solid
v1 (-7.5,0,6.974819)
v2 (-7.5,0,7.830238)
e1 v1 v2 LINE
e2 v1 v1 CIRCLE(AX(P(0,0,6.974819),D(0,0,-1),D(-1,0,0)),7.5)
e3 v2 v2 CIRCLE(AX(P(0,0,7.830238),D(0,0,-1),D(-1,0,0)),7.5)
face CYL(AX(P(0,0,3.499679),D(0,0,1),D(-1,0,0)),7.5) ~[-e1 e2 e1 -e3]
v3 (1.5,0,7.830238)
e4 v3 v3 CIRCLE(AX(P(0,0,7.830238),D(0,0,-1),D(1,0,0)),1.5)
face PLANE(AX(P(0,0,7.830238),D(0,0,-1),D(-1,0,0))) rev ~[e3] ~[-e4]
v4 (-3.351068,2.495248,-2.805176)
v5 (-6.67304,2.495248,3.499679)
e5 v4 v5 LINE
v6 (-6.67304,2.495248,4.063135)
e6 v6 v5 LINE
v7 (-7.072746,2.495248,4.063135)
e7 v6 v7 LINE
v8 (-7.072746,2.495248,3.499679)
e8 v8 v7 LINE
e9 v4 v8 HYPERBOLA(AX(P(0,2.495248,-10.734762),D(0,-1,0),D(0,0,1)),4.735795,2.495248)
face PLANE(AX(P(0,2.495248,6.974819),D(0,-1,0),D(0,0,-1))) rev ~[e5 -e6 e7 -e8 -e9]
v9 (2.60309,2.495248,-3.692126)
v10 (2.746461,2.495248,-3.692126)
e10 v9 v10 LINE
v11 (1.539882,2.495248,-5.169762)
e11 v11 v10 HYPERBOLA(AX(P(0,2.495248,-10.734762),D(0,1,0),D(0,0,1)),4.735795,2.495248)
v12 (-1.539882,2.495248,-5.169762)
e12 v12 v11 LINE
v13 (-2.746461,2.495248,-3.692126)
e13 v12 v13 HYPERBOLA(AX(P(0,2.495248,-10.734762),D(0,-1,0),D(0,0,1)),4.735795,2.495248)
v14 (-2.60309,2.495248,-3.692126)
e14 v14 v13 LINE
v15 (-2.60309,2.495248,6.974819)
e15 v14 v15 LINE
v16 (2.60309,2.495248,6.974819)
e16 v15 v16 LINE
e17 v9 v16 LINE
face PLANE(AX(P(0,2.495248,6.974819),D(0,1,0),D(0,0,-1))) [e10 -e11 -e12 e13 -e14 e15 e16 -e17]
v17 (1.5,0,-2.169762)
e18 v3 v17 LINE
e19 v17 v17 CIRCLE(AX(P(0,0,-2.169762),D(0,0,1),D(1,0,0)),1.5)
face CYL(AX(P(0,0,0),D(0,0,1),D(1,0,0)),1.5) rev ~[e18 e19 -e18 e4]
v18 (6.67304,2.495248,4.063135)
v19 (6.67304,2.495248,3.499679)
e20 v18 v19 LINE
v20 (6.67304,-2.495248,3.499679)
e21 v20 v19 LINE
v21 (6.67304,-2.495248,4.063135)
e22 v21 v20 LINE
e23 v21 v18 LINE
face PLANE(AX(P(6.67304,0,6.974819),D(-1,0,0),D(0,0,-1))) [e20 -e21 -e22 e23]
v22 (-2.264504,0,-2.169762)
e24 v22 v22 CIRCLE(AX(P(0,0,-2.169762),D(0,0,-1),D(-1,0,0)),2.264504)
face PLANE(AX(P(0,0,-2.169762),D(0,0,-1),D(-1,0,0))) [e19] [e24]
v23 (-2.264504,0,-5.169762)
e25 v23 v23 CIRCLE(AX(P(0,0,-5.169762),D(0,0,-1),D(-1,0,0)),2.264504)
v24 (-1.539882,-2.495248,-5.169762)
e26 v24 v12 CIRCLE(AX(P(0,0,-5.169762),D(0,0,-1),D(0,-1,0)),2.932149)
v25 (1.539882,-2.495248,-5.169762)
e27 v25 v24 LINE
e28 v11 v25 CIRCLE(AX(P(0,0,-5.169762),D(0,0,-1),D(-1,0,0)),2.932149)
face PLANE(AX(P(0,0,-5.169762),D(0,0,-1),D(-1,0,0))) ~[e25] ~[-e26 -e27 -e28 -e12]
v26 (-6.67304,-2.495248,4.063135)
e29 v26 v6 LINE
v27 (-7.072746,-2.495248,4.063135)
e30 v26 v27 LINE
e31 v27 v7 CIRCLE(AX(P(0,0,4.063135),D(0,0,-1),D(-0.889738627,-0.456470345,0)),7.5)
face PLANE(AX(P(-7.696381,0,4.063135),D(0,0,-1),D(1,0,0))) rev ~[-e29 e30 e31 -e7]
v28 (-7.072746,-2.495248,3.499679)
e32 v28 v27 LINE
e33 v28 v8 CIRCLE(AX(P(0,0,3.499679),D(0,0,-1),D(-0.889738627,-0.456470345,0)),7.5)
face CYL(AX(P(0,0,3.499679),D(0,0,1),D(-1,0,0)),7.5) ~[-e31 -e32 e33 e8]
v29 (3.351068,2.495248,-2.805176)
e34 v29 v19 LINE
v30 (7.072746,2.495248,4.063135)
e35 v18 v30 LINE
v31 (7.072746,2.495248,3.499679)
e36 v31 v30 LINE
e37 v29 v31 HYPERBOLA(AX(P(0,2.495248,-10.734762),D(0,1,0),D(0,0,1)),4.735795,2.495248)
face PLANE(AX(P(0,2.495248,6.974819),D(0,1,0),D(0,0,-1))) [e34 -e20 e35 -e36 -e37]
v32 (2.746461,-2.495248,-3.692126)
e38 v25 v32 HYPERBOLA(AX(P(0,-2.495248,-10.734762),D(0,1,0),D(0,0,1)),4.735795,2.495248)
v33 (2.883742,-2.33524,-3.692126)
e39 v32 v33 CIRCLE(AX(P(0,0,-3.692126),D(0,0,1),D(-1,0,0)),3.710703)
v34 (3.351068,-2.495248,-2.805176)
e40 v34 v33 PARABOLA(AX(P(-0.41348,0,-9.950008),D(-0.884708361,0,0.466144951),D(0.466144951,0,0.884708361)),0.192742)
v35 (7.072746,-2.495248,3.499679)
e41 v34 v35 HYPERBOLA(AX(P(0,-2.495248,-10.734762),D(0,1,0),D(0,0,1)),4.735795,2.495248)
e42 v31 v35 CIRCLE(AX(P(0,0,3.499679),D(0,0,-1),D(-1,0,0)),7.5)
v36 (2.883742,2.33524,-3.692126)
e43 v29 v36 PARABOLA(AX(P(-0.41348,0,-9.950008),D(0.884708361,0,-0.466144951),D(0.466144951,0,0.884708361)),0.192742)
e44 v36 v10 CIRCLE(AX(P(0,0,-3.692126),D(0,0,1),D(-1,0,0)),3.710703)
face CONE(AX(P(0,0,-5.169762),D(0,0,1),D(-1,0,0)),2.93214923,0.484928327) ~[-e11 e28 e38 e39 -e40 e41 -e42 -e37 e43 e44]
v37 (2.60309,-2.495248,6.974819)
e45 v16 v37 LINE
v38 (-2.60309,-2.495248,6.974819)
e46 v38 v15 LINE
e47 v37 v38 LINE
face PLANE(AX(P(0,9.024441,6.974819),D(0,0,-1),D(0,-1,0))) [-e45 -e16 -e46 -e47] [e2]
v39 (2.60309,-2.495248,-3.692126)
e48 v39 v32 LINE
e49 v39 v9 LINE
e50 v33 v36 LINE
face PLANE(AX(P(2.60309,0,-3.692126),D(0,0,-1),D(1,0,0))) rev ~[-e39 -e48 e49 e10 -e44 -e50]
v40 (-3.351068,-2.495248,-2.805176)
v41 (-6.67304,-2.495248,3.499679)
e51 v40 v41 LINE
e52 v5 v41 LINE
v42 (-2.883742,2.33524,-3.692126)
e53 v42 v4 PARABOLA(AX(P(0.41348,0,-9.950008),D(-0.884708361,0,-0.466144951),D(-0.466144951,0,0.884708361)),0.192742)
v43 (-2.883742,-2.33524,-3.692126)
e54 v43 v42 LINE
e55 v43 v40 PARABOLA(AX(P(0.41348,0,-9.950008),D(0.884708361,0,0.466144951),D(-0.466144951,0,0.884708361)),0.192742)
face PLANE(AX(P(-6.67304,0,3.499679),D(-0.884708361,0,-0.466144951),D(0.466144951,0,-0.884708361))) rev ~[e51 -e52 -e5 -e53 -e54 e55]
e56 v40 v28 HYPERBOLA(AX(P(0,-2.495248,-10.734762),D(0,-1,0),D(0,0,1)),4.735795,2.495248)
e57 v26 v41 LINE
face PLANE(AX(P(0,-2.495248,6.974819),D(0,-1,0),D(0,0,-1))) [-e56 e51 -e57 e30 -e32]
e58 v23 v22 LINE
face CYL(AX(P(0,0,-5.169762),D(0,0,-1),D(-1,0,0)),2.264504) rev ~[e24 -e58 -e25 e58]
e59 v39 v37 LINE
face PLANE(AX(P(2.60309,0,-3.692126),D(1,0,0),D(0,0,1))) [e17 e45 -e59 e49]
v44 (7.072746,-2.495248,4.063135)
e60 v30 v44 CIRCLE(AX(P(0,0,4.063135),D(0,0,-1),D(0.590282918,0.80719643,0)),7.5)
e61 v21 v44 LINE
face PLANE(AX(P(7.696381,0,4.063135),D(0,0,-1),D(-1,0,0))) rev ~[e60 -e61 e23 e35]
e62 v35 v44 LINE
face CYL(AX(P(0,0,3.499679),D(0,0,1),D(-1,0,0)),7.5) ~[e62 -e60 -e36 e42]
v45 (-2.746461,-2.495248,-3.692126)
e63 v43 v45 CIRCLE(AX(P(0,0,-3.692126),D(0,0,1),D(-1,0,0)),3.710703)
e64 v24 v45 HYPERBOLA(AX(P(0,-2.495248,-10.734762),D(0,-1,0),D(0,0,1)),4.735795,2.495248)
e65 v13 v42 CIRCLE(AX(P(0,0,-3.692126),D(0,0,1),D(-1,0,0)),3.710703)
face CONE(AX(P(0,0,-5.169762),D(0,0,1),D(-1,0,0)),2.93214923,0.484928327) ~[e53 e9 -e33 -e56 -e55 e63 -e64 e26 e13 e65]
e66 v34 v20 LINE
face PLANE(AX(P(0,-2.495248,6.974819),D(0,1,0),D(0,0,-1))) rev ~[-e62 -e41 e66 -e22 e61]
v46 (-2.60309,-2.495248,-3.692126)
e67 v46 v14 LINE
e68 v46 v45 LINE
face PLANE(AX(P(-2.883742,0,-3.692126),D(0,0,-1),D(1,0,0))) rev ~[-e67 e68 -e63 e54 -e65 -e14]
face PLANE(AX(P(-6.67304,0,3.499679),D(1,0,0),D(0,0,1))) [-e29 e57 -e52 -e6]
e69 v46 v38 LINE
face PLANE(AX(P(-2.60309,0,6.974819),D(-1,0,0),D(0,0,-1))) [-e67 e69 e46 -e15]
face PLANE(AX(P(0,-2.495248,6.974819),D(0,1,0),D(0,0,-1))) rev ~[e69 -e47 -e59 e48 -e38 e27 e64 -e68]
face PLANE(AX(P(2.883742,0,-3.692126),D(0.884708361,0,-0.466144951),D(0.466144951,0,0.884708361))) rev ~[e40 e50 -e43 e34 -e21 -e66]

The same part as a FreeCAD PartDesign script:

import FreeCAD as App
import Part
import Sketcher
from FreeCAD import Vector


def add_polygon(sketch, points):
    """Adds a closed chain of lines whose ends are joined by coincident constraints."""
    first, n = sketch.GeometryCount, len(points)
    for a, b in zip(points, points[1:] + points[:1]):
        sketch.addGeometry(Part.LineSegment(App.Vector(*a, 0), App.Vector(*b, 0)), False)
    for i in range(n):
        sketch.addConstraint(Sketcher.Constraint("Coincident", first + i, 2, first + (i + 1) % n, 1))

doc = App.newDocument("Part")
body = doc.addObject("PartDesign::Body", "Body")

# Sketch on XZ plane
sketch1 = body.newObject("Sketcher::SketchObject", "Sketch")
sketch1.AttachmentSupport = (doc.getObject("XZ_Plane"), [""])
sketch1.MapMode = "FlatFace"
add_polygon(sketch1, [(0, -5.2), (-2.9, -5.2), (-7.5, 3.5), (-7.5, 7.8), (0, 7.8)])  # lines 0-4
sketch1.addConstraint([
    Sketcher.Constraint("Horizontal", 0),
    Sketcher.Constraint("Vertical", 2),
    Sketcher.Constraint("Horizontal", 3),
    Sketcher.Constraint("Vertical", 4),
    Sketcher.Constraint("PointOnObject", 3, 2, -2),
    Sketcher.Constraint("DistanceY", 4, 2, 4, 1, 13.0),
    Sketcher.Constraint("DistanceX", 3, 1, 3, 2, 7.5),
    Sketcher.Constraint("DistanceX", 0, 2, 0, 1, 2.932149),
    Sketcher.Constraint("DistanceY", 2, 1, 2, 2, 4.33056),
    Sketcher.Constraint("DistanceY", 0, 2, -1, 1, 5.169762),
])
revolution = body.newObject("PartDesign::Revolution", "Revolution")
revolution.Profile = sketch1
revolution.ReferenceAxis = (sketch1, ["V_Axis"])
revolution.Angle = 360

# Sketch on XZ plane
sketch2 = body.newObject("Sketcher::SketchObject", "Sketch001")
sketch2.AttachmentSupport = (doc.getObject("XZ_Plane"), [""])
sketch2.MapMode = "FlatFace"
add_polygon(sketch2, [(-4.4, 4.1), (-7.7, 4.1), (-8.4, 7), (-4.4, 7)])  # lines 0-3
add_polygon(sketch2, [(8.4, 7), (7.7, 4.1), (4.4, 4.1), (4.4, 7)])  # lines 4-7
sketch2.addConstraint([
    Sketcher.Constraint("Horizontal", 0),
    Sketcher.Constraint("Horizontal", 2),
    Sketcher.Constraint("Vertical", 3),
    Sketcher.Constraint("Horizontal", 5),
    Sketcher.Constraint("Vertical", 6),
    Sketcher.Constraint("Horizontal", 7),
    Sketcher.Constraint("Symmetric", 0, 2, 4, 2, -2),
    Sketcher.Constraint("Symmetric", 2, 2, 6, 2, -2),
    Sketcher.Constraint("Equal", 2, 7),
    Sketcher.Constraint("DistanceX", 0, 2, 0, 1, 3.269259),
    Sketcher.Constraint("Distance", 1, 3.006528),
    Sketcher.Constraint("DistanceX", 2, 1, 2, 2, 4.018464),
    Sketcher.Constraint("DistanceX", 0, 2, -1, 1, 7.696381),
    Sketcher.Constraint("DistanceY", -1, 1, 1, 2, 6.974819),
])
pocket1 = body.newObject("PartDesign::Pocket", "Pocket")
pocket1.Profile = sketch2
pocket1.Type = "ThroughAll"
pocket1.Midplane = True

# Sketch on XZ plane
sketch3 = body.newObject("Sketcher::SketchObject", "Sketch002")
sketch3.AttachmentSupport = (doc.getObject("XZ_Plane"), [""])
sketch3.MapMode = "FlatFace"
add_polygon(sketch3, [(-6.67, 3.5), (-6.67, 6.97), (-2.6, 6.97), (-2.6, -3.69), (-2.88, -3.69)])  # lines 0-4
add_polygon(sketch3, [(2.6, -3.69), (2.6, 6.97), (6.67, 6.97), (6.67, 3.5), (2.88, -3.69)])  # lines 5-9
sketch3.addConstraint([
    Sketcher.Constraint("Vertical", 0),
    Sketcher.Constraint("Horizontal", 1),
    Sketcher.Constraint("Vertical", 2),
    Sketcher.Constraint("Horizontal", 3),
    Sketcher.Constraint("Vertical", 5),
    Sketcher.Constraint("Horizontal", 6),
    Sketcher.Constraint("Vertical", 7),
    Sketcher.Constraint("Horizontal", 9),
    Sketcher.Constraint("Symmetric", 1, 2, 5, 2, -2),
    Sketcher.Constraint("Symmetric", 4, 2, 7, 2, -2),
    Sketcher.Constraint("Symmetric", 3, 2, 8, 2, -2),
    Sketcher.Constraint("DistanceX", 1, 1, 1, 2, 4.06995),
    Sketcher.Constraint("DistanceY", 0, 1, 0, 2, 3.47514),
    Sketcher.Constraint("Distance", 4, 8.129011),
    Sketcher.Constraint("DistanceX", 3, 2, 3, 1, 0.280653),
    Sketcher.Constraint("DistanceX", 0, 2, -1, 1, 6.67304),
    Sketcher.Constraint("DistanceY", -1, 1, 0, 2, 6.974819),
])
pocket2 = body.newObject("PartDesign::Pocket", "Pocket001")
pocket2.Profile = sketch3
pocket2.Type = "ThroughAll"
pocket2.Midplane = True

# Sketch on YZ plane
sketch4 = body.newObject("Sketcher::SketchObject", "Sketch003")
sketch4.AttachmentSupport = (doc.getObject("YZ_Plane"), [""])
sketch4.MapMode = "FlatFace"
add_polygon(sketch4, [(2.5, 7), (2.5, -8.8), (9, 4.2), (9, 7)])  # lines 0-3
add_polygon(sketch4, [(-2.5, 7), (-9, 7), (-9, 4.2), (-2.5, -8.8)])  # lines 4-7
sketch4.addConstraint([
    Sketcher.Constraint("Vertical", 0),
    Sketcher.Constraint("Vertical", 2),
    Sketcher.Constraint("Horizontal", 3),
    Sketcher.Constraint("Horizontal", 4),
    Sketcher.Constraint("Vertical", 5),
    Sketcher.Constraint("Vertical", 7),
    Sketcher.Constraint("Symmetric", 2, 2, 4, 2, -2),
    Sketcher.Constraint("Symmetric", 0, 2, 6, 2, -2),
    Sketcher.Constraint("Horizontal", 1, 2, 5, 2),
    Sketcher.Constraint("DistanceY", 0, 2, 0, 1, 15.72779),
    Sketcher.Constraint("Distance", 1, 14.530032),
    Sketcher.Constraint("DistanceX", 3, 2, 3, 1, 6.529193),
    Sketcher.Constraint("DistanceX", -1, 1, 0, 2, 2.495248),
    Sketcher.Constraint("DistanceY", 0, 2, -1, 1, 8.752971),
])
pocket3 = body.newObject("PartDesign::Pocket", "Pocket002")
pocket3.Profile = sketch4
pocket3.Type = "ThroughAll"
pocket3.Midplane = True

# Sketch on XY plane
sketch5 = body.newObject("Sketcher::SketchObject", "Sketch004")
sketch5.AttachmentSupport = (doc.getObject("XY_Plane"), [""])
sketch5.MapMode = "FlatFace"
sketch5.addGeometry(Part.Circle(Vector(0, 0, 0), Vector(0, 0, 1), 1.5), False)
sketch5.addConstraint([
    Sketcher.Constraint("Coincident", 0, 3, -1, 1),
    Sketcher.Constraint("Diameter", 0, 3.0),
])
pocket4 = body.newObject("PartDesign::Pocket", "Pocket003")
pocket4.Profile = sketch5
pocket4.Type = "ThroughAll"
pocket4.Midplane = True

# Sketch on XY plane
sketch6 = body.newObject("Sketcher::SketchObject", "Sketch005")
sketch6.AttachmentSupport = (doc.getObject("XY_Plane"), [""])
sketch6.MapMode = "FlatFace"
sketch6.AttachmentOffset = App.Placement(Vector(0, 0, -5.169762), App.Rotation())
sketch6.addGeometry(Part.Circle(Vector(0, 0, 0), Vector(0, 0, 1), 2.3), False)
sketch6.addConstraint([
    Sketcher.Constraint("Coincident", 0, 3, -1, 1),
    Sketcher.Constraint("Diameter", 0, 4.529008),
])
pocket5 = body.newObject("PartDesign::Pocket", "Pocket004")
pocket5.Profile = sketch6
pocket5.Length = 3
pocket5.Reversed = True

doc.recompute()
